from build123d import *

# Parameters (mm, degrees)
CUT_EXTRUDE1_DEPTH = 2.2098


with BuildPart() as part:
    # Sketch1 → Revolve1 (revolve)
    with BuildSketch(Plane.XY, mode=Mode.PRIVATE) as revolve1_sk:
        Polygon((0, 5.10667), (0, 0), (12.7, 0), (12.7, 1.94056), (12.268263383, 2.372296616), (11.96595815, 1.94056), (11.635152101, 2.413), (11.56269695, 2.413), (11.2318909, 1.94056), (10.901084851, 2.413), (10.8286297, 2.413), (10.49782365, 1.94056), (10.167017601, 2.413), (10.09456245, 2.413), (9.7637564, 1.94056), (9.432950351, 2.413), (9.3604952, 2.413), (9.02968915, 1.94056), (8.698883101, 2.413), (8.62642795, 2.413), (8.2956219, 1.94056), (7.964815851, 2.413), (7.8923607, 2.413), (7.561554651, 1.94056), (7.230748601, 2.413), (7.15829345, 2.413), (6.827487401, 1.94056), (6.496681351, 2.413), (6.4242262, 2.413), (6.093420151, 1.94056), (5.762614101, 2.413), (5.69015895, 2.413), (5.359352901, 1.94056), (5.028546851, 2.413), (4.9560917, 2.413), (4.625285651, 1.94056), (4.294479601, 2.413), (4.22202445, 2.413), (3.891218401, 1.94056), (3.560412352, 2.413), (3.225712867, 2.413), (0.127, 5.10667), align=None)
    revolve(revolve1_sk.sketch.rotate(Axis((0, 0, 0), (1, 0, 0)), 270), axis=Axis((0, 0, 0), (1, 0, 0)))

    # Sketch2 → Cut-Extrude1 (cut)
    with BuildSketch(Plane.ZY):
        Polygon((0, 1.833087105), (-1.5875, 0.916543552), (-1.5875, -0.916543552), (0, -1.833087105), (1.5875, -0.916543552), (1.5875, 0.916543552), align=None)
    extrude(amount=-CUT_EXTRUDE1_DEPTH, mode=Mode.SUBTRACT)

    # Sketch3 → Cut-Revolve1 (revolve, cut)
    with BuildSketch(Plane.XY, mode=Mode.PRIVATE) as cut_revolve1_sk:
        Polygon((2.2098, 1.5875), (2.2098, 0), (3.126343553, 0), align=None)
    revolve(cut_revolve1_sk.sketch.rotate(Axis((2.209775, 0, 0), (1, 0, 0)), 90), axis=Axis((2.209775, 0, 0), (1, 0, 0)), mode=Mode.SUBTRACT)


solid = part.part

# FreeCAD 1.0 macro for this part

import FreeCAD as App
import Part
import Sketcher
Q = App.Units.Quantity

doc = App.newDocument("Part")
body = doc.addObject("PartDesign::Body", "Body")

# Sketch on XY plane
sketch1 = body.newObject("Sketcher::SketchObject", "Sketch")
sketch1.AttachmentSupport = (doc.getObject("XY_Plane"), [""])
sketch1.MapMode = "FlatFace"
sketch1.addGeometry([
    Part.LineSegment(App.Vector(0, 5.11, 0), App.Vector(0, 0, 0)),  # 0
    Part.LineSegment(App.Vector(0, 0, 0), App.Vector(12.7, 0, 0)),  # 1
    Part.LineSegment(App.Vector(12.7, 0, 0), App.Vector(12.7, 1.94, 0)),  # 2
    Part.LineSegment(App.Vector(12.7, 1.94, 0), App.Vector(12.27, 2.37, 0)),  # 3
    Part.LineSegment(App.Vector(12.27, 2.37, 0), App.Vector(11.97, 1.94, 0)),  # 4
    Part.LineSegment(App.Vector(11.97, 1.94, 0), App.Vector(11.64, 2.41, 0)),  # 5
    Part.LineSegment(App.Vector(11.64, 2.41, 0), App.Vector(11.56, 2.41, 0)),  # 6
    Part.LineSegment(App.Vector(11.56, 2.41, 0), App.Vector(11.23, 1.94, 0)),  # 7
    Part.LineSegment(App.Vector(11.23, 1.94, 0), App.Vector(10.9, 2.41, 0)),  # 8
    Part.LineSegment(App.Vector(10.9, 2.41, 0), App.Vector(10.83, 2.41, 0)),  # 9
    Part.LineSegment(App.Vector(10.83, 2.41, 0), App.Vector(10.5, 1.94, 0)),  # 10
    Part.LineSegment(App.Vector(10.5, 1.94, 0), App.Vector(10.17, 2.41, 0)),  # 11
    Part.LineSegment(App.Vector(10.17, 2.41, 0), App.Vector(10.09, 2.41, 0)),  # 12
    Part.LineSegment(App.Vector(10.09, 2.41, 0), App.Vector(9.76, 1.94, 0)),  # 13
    Part.LineSegment(App.Vector(9.76, 1.94, 0), App.Vector(9.43, 2.41, 0)),  # 14
    Part.LineSegment(App.Vector(9.43, 2.41, 0), App.Vector(9.36, 2.41, 0)),  # 15
    Part.LineSegment(App.Vector(9.36, 2.41, 0), App.Vector(9.03, 1.94, 0)),  # 16
    Part.LineSegment(App.Vector(9.03, 1.94, 0), App.Vector(8.7, 2.41, 0)),  # 17
    Part.LineSegment(App.Vector(8.7, 2.41, 0), App.Vector(8.63, 2.41, 0)),  # 18
    Part.LineSegment(App.Vector(8.63, 2.41, 0), App.Vector(8.3, 1.94, 0)),  # 19
    Part.LineSegment(App.Vector(8.3, 1.94, 0), App.Vector(7.96, 2.41, 0)),  # 20
    Part.LineSegment(App.Vector(7.96, 2.41, 0), App.Vector(7.89, 2.41, 0)),  # 21
    Part.LineSegment(App.Vector(7.89, 2.41, 0), App.Vector(7.56, 1.94, 0)),  # 22
    Part.LineSegment(App.Vector(7.56, 1.94, 0), App.Vector(7.23, 2.41, 0)),  # 23
    Part.LineSegment(App.Vector(7.23, 2.41, 0), App.Vector(7.16, 2.41, 0)),  # 24
    Part.LineSegment(App.Vector(7.16, 2.41, 0), App.Vector(6.83, 1.94, 0)),  # 25
    Part.LineSegment(App.Vector(6.83, 1.94, 0), App.Vector(6.5, 2.41, 0)),  # 26
    Part.LineSegment(App.Vector(6.5, 2.41, 0), App.Vector(6.42, 2.41, 0)),  # 27
    Part.LineSegment(App.Vector(6.42, 2.41, 0), App.Vector(6.09, 1.94, 0)),  # 28
    Part.LineSegment(App.Vector(6.09, 1.94, 0), App.Vector(5.76, 2.41, 0)),  # 29
    Part.LineSegment(App.Vector(5.76, 2.41, 0), App.Vector(5.69, 2.41, 0)),  # 30
    Part.LineSegment(App.Vector(5.69, 2.41, 0), App.Vector(5.36, 1.94, 0)),  # 31
    Part.LineSegment(App.Vector(5.36, 1.94, 0), App.Vector(5.03, 2.41, 0)),  # 32
    Part.LineSegment(App.Vector(5.03, 2.41, 0), App.Vector(4.96, 2.41, 0)),  # 33
    Part.LineSegment(App.Vector(4.96, 2.41, 0), App.Vector(4.63, 1.94, 0)),  # 34
    Part.LineSegment(App.Vector(4.63, 1.94, 0), App.Vector(4.29, 2.41, 0)),  # 35
    Part.LineSegment(App.Vector(4.29, 2.41, 0), App.Vector(4.22, 2.41, 0)),  # 36
    Part.LineSegment(App.Vector(4.22, 2.41, 0), App.Vector(3.89, 1.94, 0)),  # 37
    Part.LineSegment(App.Vector(3.89, 1.94, 0), App.Vector(3.56, 2.41, 0)),  # 38
    Part.LineSegment(App.Vector(3.56, 2.41, 0), App.Vector(3.23, 2.41, 0)),  # 39
    Part.LineSegment(App.Vector(3.23, 2.41, 0), App.Vector(0.13, 5.11, 0)),  # 40
    Part.LineSegment(App.Vector(0.13, 5.11, 0), App.Vector(0, 5.11, 0)),  # 41
], False)
sketch1.addConstraint([
    Sketcher.Constraint("Coincident", 0, 2, 1, 1),
    Sketcher.Constraint("Coincident", 1, 2, 2, 1),
    Sketcher.Constraint("Coincident", 2, 2, 3, 1),
    Sketcher.Constraint("Coincident", 3, 2, 4, 1),
    Sketcher.Constraint("Coincident", 4, 2, 5, 1),
    Sketcher.Constraint("Coincident", 5, 2, 6, 1),
    Sketcher.Constraint("Coincident", 6, 2, 7, 1),
    Sketcher.Constraint("Coincident", 7, 2, 8, 1),
    Sketcher.Constraint("Coincident", 8, 2, 9, 1),
    Sketcher.Constraint("Coincident", 9, 2, 10, 1),
    Sketcher.Constraint("Coincident", 10, 2, 11, 1),
    Sketcher.Constraint("Coincident", 11, 2, 12, 1),
    Sketcher.Constraint("Coincident", 12, 2, 13, 1),
    Sketcher.Constraint("Coincident", 13, 2, 14, 1),
    Sketcher.Constraint("Coincident", 14, 2, 15, 1),
    Sketcher.Constraint("Coincident", 15, 2, 16, 1),
    Sketcher.Constraint("Coincident", 16, 2, 17, 1),
    Sketcher.Constraint("Coincident", 17, 2, 18, 1),
    Sketcher.Constraint("Coincident", 18, 2, 19, 1),
    Sketcher.Constraint("Coincident", 19, 2, 20, 1),
    Sketcher.Constraint("Coincident", 20, 2, 21, 1),
    Sketcher.Constraint("Coincident", 21, 2, 22, 1),
    Sketcher.Constraint("Coincident", 22, 2, 23, 1),
    Sketcher.Constraint("Coincident", 23, 2, 24, 1),
    Sketcher.Constraint("Coincident", 24, 2, 25, 1),
    Sketcher.Constraint("Coincident", 25, 2, 26, 1),
    Sketcher.Constraint("Coincident", 26, 2, 27, 1),
    Sketcher.Constraint("Coincident", 27, 2, 28, 1),
    Sketcher.Constraint("Coincident", 28, 2, 29, 1),
    Sketcher.Constraint("Coincident", 29, 2, 30, 1),
    Sketcher.Constraint("Coincident", 30, 2, 31, 1),
    Sketcher.Constraint("Coincident", 31, 2, 32, 1),
    Sketcher.Constraint("Coincident", 32, 2, 33, 1),
    Sketcher.Constraint("Coincident", 33, 2, 34, 1),
    Sketcher.Constraint("Coincident", 34, 2, 35, 1),
    Sketcher.Constraint("Coincident", 35, 2, 36, 1),
    Sketcher.Constraint("Coincident", 36, 2, 37, 1),
    Sketcher.Constraint("Coincident", 37, 2, 38, 1),
    Sketcher.Constraint("Coincident", 38, 2, 39, 1),
    Sketcher.Constraint("Coincident", 39, 2, 40, 1),
    Sketcher.Constraint("Coincident", 40, 2, 41, 1),
    Sketcher.Constraint("Coincident", 41, 2, 0, 1),
    Sketcher.Constraint("Vertical", 0),
    Sketcher.Constraint("Horizontal", 1),
    Sketcher.Constraint("Vertical", 2),
    Sketcher.Constraint("Horizontal", 6),
    Sketcher.Constraint("Horizontal", 9),
    Sketcher.Constraint("Horizontal", 12),
    Sketcher.Constraint("Horizontal", 15),
    Sketcher.Constraint("Horizontal", 18),
    Sketcher.Constraint("Horizontal", 21),
    Sketcher.Constraint("Horizontal", 24),
    Sketcher.Constraint("Horizontal", 27),
    Sketcher.Constraint("Horizontal", 30),
    Sketcher.Constraint("Horizontal", 33),
    Sketcher.Constraint("Horizontal", 36),
    Sketcher.Constraint("Horizontal", 39),
    Sketcher.Constraint("Horizontal", 41),
    Sketcher.Constraint("Coincident", 0, 2, -1, 1),
    Sketcher.Constraint("Parallel", 4, 7),
    Sketcher.Constraint("Parallel", 5, 8),
    Sketcher.Constraint("Parallel", 7, 10),
    Sketcher.Constraint("Parallel", 8, 11),
    Sketcher.Constraint("Parallel", 10, 13),
    Sketcher.Constraint("Parallel", 11, 14),
    Sketcher.Constraint("Parallel", 13, 16),
    Sketcher.Constraint("Parallel", 14, 17),
    Sketcher.Constraint("Parallel", 16, 19),
    Sketcher.Constraint("Parallel", 17, 20),
    Sketcher.Constraint("Parallel", 19, 22),
    Sketcher.Constraint("Parallel", 20, 23),
    Sketcher.Constraint("Parallel", 22, 25),
    Sketcher.Constraint("Parallel", 23, 26),
    Sketcher.Constraint("Parallel", 25, 28),
    Sketcher.Constraint("Parallel", 26, 29),
    Sketcher.Constraint("Parallel", 28, 31),
    Sketcher.Constraint("Parallel", 29, 32),
    Sketcher.Constraint("Parallel", 31, 34),
    Sketcher.Constraint("Parallel", 32, 35),
    Sketcher.Constraint("Parallel", 34, 37),
    Sketcher.Constraint("Parallel", 35, 38),
    Sketcher.Constraint("Horizontal", 2, 2, 4, 2),
    Sketcher.Constraint("Horizontal", 4, 2, 7, 2),
    Sketcher.Constraint("Horizontal", 6, 2, 8, 2),
    Sketcher.Constraint("Horizontal", 7, 2, 10, 2),
    Sketcher.Constraint("Horizontal", 9, 2, 11, 2),
    Sketcher.Constraint("Horizontal", 10, 2, 13, 2),
    Sketcher.Constraint("Horizontal", 12, 2, 14, 2),
    Sketcher.Constraint("Horizontal", 13, 2, 16, 2),
    Sketcher.Constraint("Horizontal", 15, 2, 17, 2),
    Sketcher.Constraint("Horizontal", 16, 2, 19, 2),
    Sketcher.Constraint("Horizontal", 18, 2, 20, 2),
    Sketcher.Constraint("Horizontal", 19, 2, 22, 2),
    Sketcher.Constraint("Horizontal", 21, 2, 23, 2),
    Sketcher.Constraint("Horizontal", 22, 2, 25, 2),
    Sketcher.Constraint("Horizontal", 24, 2, 26, 2),
    Sketcher.Constraint("Horizontal", 25, 2, 28, 2),
    Sketcher.Constraint("Horizontal", 27, 2, 29, 2),
    Sketcher.Constraint("Horizontal", 28, 2, 31, 2),
    Sketcher.Constraint("Horizontal", 30, 2, 32, 2),
    Sketcher.Constraint("Horizontal", 31, 2, 34, 2),
    Sketcher.Constraint("Horizontal", 33, 2, 35, 2),
    Sketcher.Constraint("Horizontal", 34, 2, 37, 2),
    Sketcher.Constraint("Horizontal", 36, 2, 38, 2),
    Sketcher.Constraint("Equal", 6, 9),
    Sketcher.Constraint("Equal", 9, 12),
    Sketcher.Constraint("Equal", 12, 15),
    Sketcher.Constraint("Equal", 15, 18),
    Sketcher.Constraint("Equal", 18, 21),
    Sketcher.Constraint("Equal", 21, 24),
    Sketcher.Constraint("Equal", 24, 27),
    Sketcher.Constraint("Equal", 27, 30),
    Sketcher.Constraint("Equal", 30, 33),
    Sketcher.Constraint("Equal", 33, 36),
    Sketcher.Constraint("Equal", 5, 7),
    Sketcher.Constraint("DistanceX", 1, 1, 1, 2, Q("0.5 in")),
    Sketcher.Constraint("Angle", 3, Q("135 deg")),
    Sketcher.Constraint("Angle", 4, Q("-125 deg")),
    Sketcher.Constraint("Angle", 40, Q("139 deg")),
    Sketcher.Constraint("DistanceX", 41, 2, 41, 1, Q("0.005 in")),
    Sketcher.Constraint("DistanceY", 2, 1, 2, 2, Q("0.0764 in")),
    Sketcher.Constraint("DistanceY", -1, 1, 5, 2, Q("0.095 in")),
    Sketcher.Constraint("DistanceX", 39, 2, 39, 1, 0.334699),
    Sketcher.Constraint("DistanceX", -1, 1, 10, 2, Q("0.4133001 in")),
    Sketcher.Constraint("DistanceX", -1, 1, 13, 2, Q("0.3843999 in")),
])
revolution = body.newObject("PartDesign::Revolution", "Revolution")
revolution.Profile = sketch1
revolution.ReferenceAxis = (sketch1, ["H_Axis"])
revolution.Angle = 360

# Sketch on YZ plane
sketch2 = body.newObject("Sketcher::SketchObject", "Sketch001")
sketch2.AttachmentSupport = (doc.getObject("YZ_Plane"), [""])
sketch2.MapMode = "FlatFace"
sketch2.addGeometry([
    Part.LineSegment(App.Vector(1.8, 0, 0), App.Vector(0.9, -1.6, 0)),  # 0
    Part.LineSegment(App.Vector(0.9, -1.6, 0), App.Vector(-0.9, -1.6, 0)),  # 1
    Part.LineSegment(App.Vector(-0.9, -1.6, 0), App.Vector(-1.8, 0, 0)),  # 2
    Part.LineSegment(App.Vector(-1.8, 0, 0), App.Vector(-0.9, 1.6, 0)),  # 3
    Part.LineSegment(App.Vector(-0.9, 1.6, 0), App.Vector(0.9, 1.6, 0)),  # 4
    Part.LineSegment(App.Vector(0.9, 1.6, 0), App.Vector(1.8, 0, 0)),  # 5
], False)
sketch2.addConstraint([
    Sketcher.Constraint("Coincident", 0, 2, 1, 1),
    Sketcher.Constraint("Coincident", 1, 2, 2, 1),
    Sketcher.Constraint("Coincident", 2, 2, 3, 1),
    Sketcher.Constraint("Coincident", 3, 2, 4, 1),
    Sketcher.Constraint("Coincident", 4, 2, 5, 1),
    Sketcher.Constraint("Coincident", 5, 2, 0, 1),
    Sketcher.Constraint("Horizontal", 1),
    Sketcher.Constraint("Horizontal", 4),
    Sketcher.Constraint("Symmetric", 0, 2, 3, 2, -1, 1),
    Sketcher.Constraint("Symmetric", 2, 2, 5, 2, -1, 1),
    Sketcher.Constraint("PointOnObject", 2, 2, -1),
    Sketcher.Constraint("Parallel", 2, 5),
    Sketcher.Constraint("Vertical", 1, 2, 3, 2),
    Sketcher.Constraint("Angle", 0, Q("-120 deg")),
    Sketcher.Constraint("DistanceY", 0, 2, -1, 1, Q("0.0625 in")),
    Sketcher.Constraint("DistanceX", 1, 2, 1, 1, 1.833087),
])
pocket1 = body.newObject("PartDesign::Pocket", "Pocket")
pocket1.Profile = sketch2
pocket1.Length = Q("0.087 in")
pocket1.Reversed = True

# Sketch on XY plane
sketch3 = body.newObject("Sketcher::SketchObject", "Sketch002")
sketch3.AttachmentSupport = (doc.getObject("XY_Plane"), [""])
sketch3.MapMode = "FlatFace"
sketch3.addGeometry([
    Part.LineSegment(App.Vector(2.2, 1.6, 0), App.Vector(2.2, 0, 0)),
    Part.LineSegment(App.Vector(2.2, 0, 0), App.Vector(3.1, 0, 0)),
    Part.LineSegment(App.Vector(3.1, 0, 0), App.Vector(2.2, 1.6, 0)),
], False)
sketch3.addConstraint([
    Sketcher.Constraint("Coincident", 0, 2, 1, 1),
    Sketcher.Constraint("Coincident", 1, 2, 2, 1),
    Sketcher.Constraint("Coincident", 2, 2, 0, 1),
    Sketcher.Constraint("Vertical", 0),
    Sketcher.Constraint("Horizontal", 1),
    Sketcher.Constraint("PointOnObject", 0, 2, -1),
    Sketcher.Constraint("Angle", 2, Q("120 deg")),
    Sketcher.Constraint("DistanceY", 0, 2, 0, 1, Q("0.0625 in")),
    Sketcher.Constraint("DistanceX", -1, 1, 0, 2, Q("0.087 in")),
])
groove = body.newObject("PartDesign::Groove", "Groove")
groove.Profile = sketch3
groove.ReferenceAxis = (sketch3, ["H_Axis"])
groove.Angle = 360

doc.recompute()
